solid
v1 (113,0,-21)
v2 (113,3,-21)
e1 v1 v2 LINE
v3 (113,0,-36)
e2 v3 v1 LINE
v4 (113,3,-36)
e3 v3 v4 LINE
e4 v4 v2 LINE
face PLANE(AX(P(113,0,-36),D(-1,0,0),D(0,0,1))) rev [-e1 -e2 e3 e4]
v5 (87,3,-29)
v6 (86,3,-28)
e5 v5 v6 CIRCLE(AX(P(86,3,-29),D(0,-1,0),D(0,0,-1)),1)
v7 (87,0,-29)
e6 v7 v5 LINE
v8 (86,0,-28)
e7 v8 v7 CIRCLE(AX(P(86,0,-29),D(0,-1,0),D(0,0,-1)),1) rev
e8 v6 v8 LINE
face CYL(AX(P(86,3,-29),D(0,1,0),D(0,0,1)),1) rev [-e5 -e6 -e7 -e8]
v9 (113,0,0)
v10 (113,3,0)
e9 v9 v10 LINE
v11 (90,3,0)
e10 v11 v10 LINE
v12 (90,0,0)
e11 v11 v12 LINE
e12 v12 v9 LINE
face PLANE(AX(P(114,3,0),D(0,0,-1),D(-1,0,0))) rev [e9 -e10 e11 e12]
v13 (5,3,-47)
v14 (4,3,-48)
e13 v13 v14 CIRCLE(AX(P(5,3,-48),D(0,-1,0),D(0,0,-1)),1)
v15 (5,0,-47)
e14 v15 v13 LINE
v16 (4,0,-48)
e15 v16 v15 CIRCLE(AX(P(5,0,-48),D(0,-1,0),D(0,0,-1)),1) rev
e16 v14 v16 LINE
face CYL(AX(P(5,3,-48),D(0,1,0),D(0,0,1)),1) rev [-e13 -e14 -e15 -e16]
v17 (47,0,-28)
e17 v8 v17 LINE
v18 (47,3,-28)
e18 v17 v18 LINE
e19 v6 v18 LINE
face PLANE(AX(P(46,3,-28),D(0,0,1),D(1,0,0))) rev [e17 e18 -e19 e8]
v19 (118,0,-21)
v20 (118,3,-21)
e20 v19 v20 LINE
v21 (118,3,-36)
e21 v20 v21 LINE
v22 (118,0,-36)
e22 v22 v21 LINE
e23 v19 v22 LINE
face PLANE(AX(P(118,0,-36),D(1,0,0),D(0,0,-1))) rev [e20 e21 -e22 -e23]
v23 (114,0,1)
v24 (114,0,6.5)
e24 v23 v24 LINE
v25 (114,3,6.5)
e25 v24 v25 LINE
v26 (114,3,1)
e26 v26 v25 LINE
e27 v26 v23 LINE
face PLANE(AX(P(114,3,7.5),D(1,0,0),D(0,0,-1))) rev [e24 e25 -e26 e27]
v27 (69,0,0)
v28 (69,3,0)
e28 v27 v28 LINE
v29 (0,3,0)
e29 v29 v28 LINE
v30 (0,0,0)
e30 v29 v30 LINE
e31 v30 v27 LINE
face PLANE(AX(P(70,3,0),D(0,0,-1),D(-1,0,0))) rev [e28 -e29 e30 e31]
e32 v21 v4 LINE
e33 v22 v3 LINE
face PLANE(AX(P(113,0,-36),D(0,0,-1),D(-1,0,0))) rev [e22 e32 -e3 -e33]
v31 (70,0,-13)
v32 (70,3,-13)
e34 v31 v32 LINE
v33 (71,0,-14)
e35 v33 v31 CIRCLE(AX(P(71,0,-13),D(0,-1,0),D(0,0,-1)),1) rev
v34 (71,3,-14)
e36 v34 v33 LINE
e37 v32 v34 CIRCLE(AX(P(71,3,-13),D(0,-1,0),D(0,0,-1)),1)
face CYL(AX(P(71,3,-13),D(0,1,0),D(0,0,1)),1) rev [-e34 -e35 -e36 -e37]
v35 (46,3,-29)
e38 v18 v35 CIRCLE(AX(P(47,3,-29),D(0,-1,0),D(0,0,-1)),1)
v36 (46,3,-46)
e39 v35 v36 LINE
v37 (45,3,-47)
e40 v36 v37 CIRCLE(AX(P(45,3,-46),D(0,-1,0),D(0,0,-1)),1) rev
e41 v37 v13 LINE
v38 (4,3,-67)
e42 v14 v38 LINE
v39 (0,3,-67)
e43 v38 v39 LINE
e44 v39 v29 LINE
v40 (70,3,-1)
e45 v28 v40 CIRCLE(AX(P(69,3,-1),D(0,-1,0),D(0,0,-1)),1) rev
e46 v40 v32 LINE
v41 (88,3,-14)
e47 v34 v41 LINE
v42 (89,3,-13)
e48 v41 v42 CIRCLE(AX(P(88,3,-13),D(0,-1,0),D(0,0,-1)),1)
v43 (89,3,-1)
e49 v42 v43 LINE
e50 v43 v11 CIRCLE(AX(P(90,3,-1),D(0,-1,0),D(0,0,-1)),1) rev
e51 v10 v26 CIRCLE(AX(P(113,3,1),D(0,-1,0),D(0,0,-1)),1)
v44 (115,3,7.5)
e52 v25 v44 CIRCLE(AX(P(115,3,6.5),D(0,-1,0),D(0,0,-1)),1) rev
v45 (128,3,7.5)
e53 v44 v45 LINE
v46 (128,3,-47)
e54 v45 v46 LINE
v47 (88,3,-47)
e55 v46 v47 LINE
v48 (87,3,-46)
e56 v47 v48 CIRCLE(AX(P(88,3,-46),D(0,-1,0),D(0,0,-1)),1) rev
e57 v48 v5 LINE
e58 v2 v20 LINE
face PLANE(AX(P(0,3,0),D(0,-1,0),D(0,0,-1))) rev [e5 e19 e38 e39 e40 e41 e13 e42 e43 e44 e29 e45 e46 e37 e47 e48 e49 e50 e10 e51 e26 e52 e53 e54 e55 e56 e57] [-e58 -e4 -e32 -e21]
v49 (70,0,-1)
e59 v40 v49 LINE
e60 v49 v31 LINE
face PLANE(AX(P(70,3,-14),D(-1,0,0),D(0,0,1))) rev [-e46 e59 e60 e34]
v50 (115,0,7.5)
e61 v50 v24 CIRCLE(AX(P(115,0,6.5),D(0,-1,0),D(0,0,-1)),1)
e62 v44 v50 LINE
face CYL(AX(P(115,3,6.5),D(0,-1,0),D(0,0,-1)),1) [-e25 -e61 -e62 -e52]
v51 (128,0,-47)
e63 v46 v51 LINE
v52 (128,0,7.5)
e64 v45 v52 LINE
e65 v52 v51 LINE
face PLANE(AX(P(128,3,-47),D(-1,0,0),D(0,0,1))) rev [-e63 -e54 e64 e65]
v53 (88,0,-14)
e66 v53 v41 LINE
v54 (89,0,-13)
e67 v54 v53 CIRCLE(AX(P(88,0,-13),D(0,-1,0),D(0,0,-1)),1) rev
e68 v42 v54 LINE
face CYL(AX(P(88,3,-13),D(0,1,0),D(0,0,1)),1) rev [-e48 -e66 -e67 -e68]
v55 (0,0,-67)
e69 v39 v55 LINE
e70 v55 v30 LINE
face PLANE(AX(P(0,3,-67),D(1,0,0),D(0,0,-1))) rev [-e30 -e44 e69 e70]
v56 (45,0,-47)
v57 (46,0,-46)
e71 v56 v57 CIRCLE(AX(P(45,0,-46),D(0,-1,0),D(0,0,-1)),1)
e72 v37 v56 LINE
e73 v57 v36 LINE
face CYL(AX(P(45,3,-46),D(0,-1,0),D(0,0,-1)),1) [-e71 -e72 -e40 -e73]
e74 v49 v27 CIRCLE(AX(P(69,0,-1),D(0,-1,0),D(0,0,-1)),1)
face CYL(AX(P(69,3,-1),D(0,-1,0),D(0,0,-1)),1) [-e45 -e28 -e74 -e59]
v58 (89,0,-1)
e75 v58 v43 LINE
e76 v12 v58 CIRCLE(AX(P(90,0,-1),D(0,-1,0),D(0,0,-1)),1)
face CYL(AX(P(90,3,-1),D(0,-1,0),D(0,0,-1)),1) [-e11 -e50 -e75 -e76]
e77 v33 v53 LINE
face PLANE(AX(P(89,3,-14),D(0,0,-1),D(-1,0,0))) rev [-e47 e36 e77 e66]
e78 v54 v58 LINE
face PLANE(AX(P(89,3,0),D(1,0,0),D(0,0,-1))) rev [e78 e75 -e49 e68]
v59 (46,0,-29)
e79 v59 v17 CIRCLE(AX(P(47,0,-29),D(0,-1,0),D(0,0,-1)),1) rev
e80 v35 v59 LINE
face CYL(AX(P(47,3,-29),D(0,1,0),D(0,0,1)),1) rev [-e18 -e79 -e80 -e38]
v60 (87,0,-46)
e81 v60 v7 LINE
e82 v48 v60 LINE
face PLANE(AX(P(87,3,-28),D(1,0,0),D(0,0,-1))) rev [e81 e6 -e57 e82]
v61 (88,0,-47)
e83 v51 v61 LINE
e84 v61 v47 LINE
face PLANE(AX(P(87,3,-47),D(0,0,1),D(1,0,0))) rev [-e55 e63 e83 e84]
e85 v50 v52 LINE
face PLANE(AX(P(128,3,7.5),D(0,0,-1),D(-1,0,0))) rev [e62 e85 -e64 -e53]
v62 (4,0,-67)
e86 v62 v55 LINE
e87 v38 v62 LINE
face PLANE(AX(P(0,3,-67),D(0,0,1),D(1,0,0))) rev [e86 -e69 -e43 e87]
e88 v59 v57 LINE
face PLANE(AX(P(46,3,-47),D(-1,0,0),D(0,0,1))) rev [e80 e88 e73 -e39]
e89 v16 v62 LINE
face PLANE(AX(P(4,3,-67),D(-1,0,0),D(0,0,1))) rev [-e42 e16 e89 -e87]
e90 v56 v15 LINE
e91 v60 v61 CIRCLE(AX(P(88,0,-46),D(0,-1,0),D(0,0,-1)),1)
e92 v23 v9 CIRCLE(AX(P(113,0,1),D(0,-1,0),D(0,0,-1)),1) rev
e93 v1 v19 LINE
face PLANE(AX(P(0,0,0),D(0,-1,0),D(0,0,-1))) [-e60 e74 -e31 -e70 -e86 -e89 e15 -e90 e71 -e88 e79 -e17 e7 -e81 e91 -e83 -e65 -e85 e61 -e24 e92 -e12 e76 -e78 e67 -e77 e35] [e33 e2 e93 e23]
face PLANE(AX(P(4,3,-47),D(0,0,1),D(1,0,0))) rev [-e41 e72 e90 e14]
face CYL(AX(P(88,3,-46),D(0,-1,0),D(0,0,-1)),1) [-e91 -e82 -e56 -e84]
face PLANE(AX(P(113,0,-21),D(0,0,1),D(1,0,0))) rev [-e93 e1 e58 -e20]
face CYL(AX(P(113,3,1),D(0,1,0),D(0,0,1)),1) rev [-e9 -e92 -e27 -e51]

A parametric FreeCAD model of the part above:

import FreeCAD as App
import Part
import Sketcher

V = App.Vector


def edges_at(feature, points):
    """Names of the edges that pass closest to the given points."""
    edges = feature.Shape.Edges
    near = lambda p: min(range(len(edges)), key=lambda i: edges[i].distToShape(Part.Vertex(*p))[0])
    return sorted({f"Edge{near(p) + 1}" for p in points})

doc = App.newDocument("Part")
body = doc.addObject("PartDesign::Body", "Body")

sketch1 = doc.addObject("Sketcher::SketchObject", "Sketch")
body.addObject(sketch1)
sketch1.AttachmentSupport = (doc.XZ_Plane, [""])
sketch1.MapMode = "FlatFace"
sketch1.addGeometry(Part.LineSegment(V(4, -67, 0), V(0, -67, 0)), False)
sketch1.addGeometry(Part.LineSegment(V(0, -67, 0), V(0, 0, 0)), False)
sketch1.addGeometry(Part.LineSegment(V(0, 0, 0), V(70, 0, 0)), False)
sketch1.addGeometry(Part.LineSegment(V(70, 0, 0), V(70, -14, 0)), False)
sketch1.addGeometry(Part.LineSegment(V(70, -14, 0), V(89, -14, 0)), False)
sketch1.addGeometry(Part.LineSegment(V(89, -14, 0), V(89, 0, 0)), False)
sketch1.addGeometry(Part.LineSegment(V(89, 0, 0), V(114, 0, 0)), False)
sketch1.addGeometry(Part.LineSegment(V(114, 0, 0), V(114, 7.5, 0)), False)
sketch1.addGeometry(Part.LineSegment(V(114, 7.5, 0), V(128, 7.5, 0)), False)
sketch1.addGeometry(Part.LineSegment(V(128, 7.5, 0), V(128, -47, 0)), False)
sketch1.addGeometry(Part.LineSegment(V(128, -47, 0), V(87, -47, 0)), False)
sketch1.addGeometry(Part.LineSegment(V(87, -47, 0), V(87, -28, 0)), False)
sketch1.addGeometry(Part.LineSegment(V(87, -28, 0), V(46, -28, 0)), False)
sketch1.addGeometry(Part.LineSegment(V(46, -28, 0), V(46, -47, 0)), False)
sketch1.addGeometry(Part.LineSegment(V(46, -47, 0), V(4, -47, 0)), False)
sketch1.addGeometry(Part.LineSegment(V(4, -47, 0), V(4, -67, 0)), False)
sketch1.addConstraint(Sketcher.Constraint("Coincident", 0, 2, 1, 1))
sketch1.addConstraint(Sketcher.Constraint("Coincident", 1, 2, 2, 1))
sketch1.addConstraint(Sketcher.Constraint("Coincident", 2, 2, 3, 1))
sketch1.addConstraint(Sketcher.Constraint("Coincident", 3, 2, 4, 1))
sketch1.addConstraint(Sketcher.Constraint("Coincident", 4, 2, 5, 1))
sketch1.addConstraint(Sketcher.Constraint("Coincident", 5, 2, 6, 1))
sketch1.addConstraint(Sketcher.Constraint("Coincident", 6, 2, 7, 1))
sketch1.addConstraint(Sketcher.Constraint("Coincident", 7, 2, 8, 1))
sketch1.addConstraint(Sketcher.Constraint("Coincident", 8, 2, 9, 1))
sketch1.addConstraint(Sketcher.Constraint("Coincident", 9, 2, 10, 1))
sketch1.addConstraint(Sketcher.Constraint("Coincident", 10, 2, 11, 1))
sketch1.addConstraint(Sketcher.Constraint("Coincident", 11, 2, 12, 1))
sketch1.addConstraint(Sketcher.Constraint("Coincident", 12, 2, 13, 1))
sketch1.addConstraint(Sketcher.Constraint("Coincident", 13, 2, 14, 1))
sketch1.addConstraint(Sketcher.Constraint("Coincident", 14, 2, 15, 1))
sketch1.addConstraint(Sketcher.Constraint("Coincident", 15, 2, 0, 1))
sketch1.addConstraint(Sketcher.Constraint("Horizontal", 0))
sketch1.addConstraint(Sketcher.Constraint("Vertical", 1))
sketch1.addConstraint(Sketcher.Constraint("Horizontal", 2))
sketch1.addConstraint(Sketcher.Constraint("Vertical", 3))
sketch1.addConstraint(Sketcher.Constraint("Horizontal", 4))
sketch1.addConstraint(Sketcher.Constraint("Vertical", 5))
sketch1.addConstraint(Sketcher.Constraint("Horizontal", 6))
sketch1.addConstraint(Sketcher.Constraint("Vertical", 7))
sketch1.addConstraint(Sketcher.Constraint("Horizontal", 8))
sketch1.addConstraint(Sketcher.Constraint("Vertical", 9))
sketch1.addConstraint(Sketcher.Constraint("Horizontal", 10))
sketch1.addConstraint(Sketcher.Constraint("Vertical", 11))
sketch1.addConstraint(Sketcher.Constraint("Horizontal", 12))
sketch1.addConstraint(Sketcher.Constraint("Vertical", 13))
sketch1.addConstraint(Sketcher.Constraint("Horizontal", 14))
sketch1.addConstraint(Sketcher.Constraint("Vertical", 15))
sketch1.addConstraint(Sketcher.Constraint("Coincident", 1, 2, -1, 1))
sketch1.addConstraint(Sketcher.Constraint("PointOnObject", 5, 2, -1))
sketch1.addConstraint(Sketcher.Constraint("Horizontal", 10, 2, 13, 2))
sketch1.addConstraint(Sketcher.Constraint("Equal", 10, 12))
sketch1.addConstraint(Sketcher.Constraint("Equal", 8, 3))
sketch1.addConstraint(Sketcher.Constraint("Equal", 4, 11))
sketch1.addConstraint(Sketcher.Constraint("DistanceX", 0, 2, 0, 1, 4.0))
sketch1.addConstraint(Sketcher.Constraint("DistanceX", 2, 1, 2, 2, 70.0))
sketch1.addConstraint(Sketcher.Constraint("DistanceX", 4, 1, 4, 2, 19.0))
sketch1.addConstraint(Sketcher.Constraint("DistanceX", 6, 1, 6, 2, 25.0))
sketch1.addConstraint(Sketcher.Constraint("DistanceX", 8, 1, 8, 2, 14.0))
sketch1.addConstraint(Sketcher.Constraint("DistanceX", 10, 2, 10, 1, 41.0))
sketch1.addConstraint(Sketcher.Constraint("DistanceY", 1, 1, 1, 2, 67.0))
sketch1.addConstraint(Sketcher.Constraint("DistanceY", 15, 2, 15, 1, 20.0))
sketch1.addConstraint(Sketcher.Constraint("DistanceY", 7, 1, 7, 2, 7.5))
pad1 = doc.addObject("PartDesign::Pad", "Pad")
body.addObject(pad1)
pad1.Profile = sketch1
pad1.Length = 3
pad1.Reversed = True

sketch2 = doc.addObject("Sketcher::SketchObject", "Sketch001")
body.addObject(sketch2)
sketch2.AttachmentSupport = (doc.XZ_Plane, [""])
sketch2.MapMode = "FlatFace"
sketch2.AttachmentOffset = App.Placement(V(0, 0, -3), App.Rotation())
sketch2.addGeometry(Part.LineSegment(V(113, -36, 0), V(113, -21, 0)), False)
sketch2.addGeometry(Part.LineSegment(V(113, -21, 0), V(118, -21, 0)), False)
sketch2.addGeometry(Part.LineSegment(V(118, -21, 0), V(118, -36, 0)), False)
sketch2.addGeometry(Part.LineSegment(V(118, -36, 0), V(113, -36, 0)), False)
sketch2.addConstraint(Sketcher.Constraint("Coincident", 0, 2, 1, 1))
sketch2.addConstraint(Sketcher.Constraint("Coincident", 1, 2, 2, 1))
sketch2.addConstraint(Sketcher.Constraint("Coincident", 2, 2, 3, 1))
sketch2.addConstraint(Sketcher.Constraint("Coincident", 3, 2, 0, 1))
sketch2.addConstraint(Sketcher.Constraint("Vertical", 0))
sketch2.addConstraint(Sketcher.Constraint("Horizontal", 1))
sketch2.addConstraint(Sketcher.Constraint("Vertical", 2))
sketch2.addConstraint(Sketcher.Constraint("Horizontal", 3))
sketch2.addConstraint(Sketcher.Constraint("DistanceX", 1, 1, 1, 2, 5.0))
sketch2.addConstraint(Sketcher.Constraint("DistanceY", 0, 1, 0, 2, 15.0))
sketch2.addConstraint(Sketcher.Constraint("DistanceX", -1, 1, 0, 2, 113.0))
sketch2.addConstraint(Sketcher.Constraint("DistanceY", 0, 2, -1, 1, 21.0))
pocket1 = doc.addObject("PartDesign::Pocket", "Pocket")
body.addObject(pocket1)
pocket1.Profile = sketch2
pocket1.Type = "ThroughAll"
pocket1.Reversed = True
doc.recompute()

fillet = doc.addObject("PartDesign::Fillet", "Fillet")
body.addObject(fillet)
fillet.Base = (pocket1, edges_at(pocket1, [
    (4, 1.5, -47),
    (46, 1.5, -47),
    (46, 1.5, -28),
    (87, 1.5, -28),
    (87, 1.5, -47),
    (114, 1.5, 7.5),
    (114, 1.5, 0),
    (89, 1.5, 0),
    (89, 1.5, -14),
    (70, 1.5, -14),
    (70, 1.5, 0),
]))
fillet.Radius = 1

doc.recompute()
